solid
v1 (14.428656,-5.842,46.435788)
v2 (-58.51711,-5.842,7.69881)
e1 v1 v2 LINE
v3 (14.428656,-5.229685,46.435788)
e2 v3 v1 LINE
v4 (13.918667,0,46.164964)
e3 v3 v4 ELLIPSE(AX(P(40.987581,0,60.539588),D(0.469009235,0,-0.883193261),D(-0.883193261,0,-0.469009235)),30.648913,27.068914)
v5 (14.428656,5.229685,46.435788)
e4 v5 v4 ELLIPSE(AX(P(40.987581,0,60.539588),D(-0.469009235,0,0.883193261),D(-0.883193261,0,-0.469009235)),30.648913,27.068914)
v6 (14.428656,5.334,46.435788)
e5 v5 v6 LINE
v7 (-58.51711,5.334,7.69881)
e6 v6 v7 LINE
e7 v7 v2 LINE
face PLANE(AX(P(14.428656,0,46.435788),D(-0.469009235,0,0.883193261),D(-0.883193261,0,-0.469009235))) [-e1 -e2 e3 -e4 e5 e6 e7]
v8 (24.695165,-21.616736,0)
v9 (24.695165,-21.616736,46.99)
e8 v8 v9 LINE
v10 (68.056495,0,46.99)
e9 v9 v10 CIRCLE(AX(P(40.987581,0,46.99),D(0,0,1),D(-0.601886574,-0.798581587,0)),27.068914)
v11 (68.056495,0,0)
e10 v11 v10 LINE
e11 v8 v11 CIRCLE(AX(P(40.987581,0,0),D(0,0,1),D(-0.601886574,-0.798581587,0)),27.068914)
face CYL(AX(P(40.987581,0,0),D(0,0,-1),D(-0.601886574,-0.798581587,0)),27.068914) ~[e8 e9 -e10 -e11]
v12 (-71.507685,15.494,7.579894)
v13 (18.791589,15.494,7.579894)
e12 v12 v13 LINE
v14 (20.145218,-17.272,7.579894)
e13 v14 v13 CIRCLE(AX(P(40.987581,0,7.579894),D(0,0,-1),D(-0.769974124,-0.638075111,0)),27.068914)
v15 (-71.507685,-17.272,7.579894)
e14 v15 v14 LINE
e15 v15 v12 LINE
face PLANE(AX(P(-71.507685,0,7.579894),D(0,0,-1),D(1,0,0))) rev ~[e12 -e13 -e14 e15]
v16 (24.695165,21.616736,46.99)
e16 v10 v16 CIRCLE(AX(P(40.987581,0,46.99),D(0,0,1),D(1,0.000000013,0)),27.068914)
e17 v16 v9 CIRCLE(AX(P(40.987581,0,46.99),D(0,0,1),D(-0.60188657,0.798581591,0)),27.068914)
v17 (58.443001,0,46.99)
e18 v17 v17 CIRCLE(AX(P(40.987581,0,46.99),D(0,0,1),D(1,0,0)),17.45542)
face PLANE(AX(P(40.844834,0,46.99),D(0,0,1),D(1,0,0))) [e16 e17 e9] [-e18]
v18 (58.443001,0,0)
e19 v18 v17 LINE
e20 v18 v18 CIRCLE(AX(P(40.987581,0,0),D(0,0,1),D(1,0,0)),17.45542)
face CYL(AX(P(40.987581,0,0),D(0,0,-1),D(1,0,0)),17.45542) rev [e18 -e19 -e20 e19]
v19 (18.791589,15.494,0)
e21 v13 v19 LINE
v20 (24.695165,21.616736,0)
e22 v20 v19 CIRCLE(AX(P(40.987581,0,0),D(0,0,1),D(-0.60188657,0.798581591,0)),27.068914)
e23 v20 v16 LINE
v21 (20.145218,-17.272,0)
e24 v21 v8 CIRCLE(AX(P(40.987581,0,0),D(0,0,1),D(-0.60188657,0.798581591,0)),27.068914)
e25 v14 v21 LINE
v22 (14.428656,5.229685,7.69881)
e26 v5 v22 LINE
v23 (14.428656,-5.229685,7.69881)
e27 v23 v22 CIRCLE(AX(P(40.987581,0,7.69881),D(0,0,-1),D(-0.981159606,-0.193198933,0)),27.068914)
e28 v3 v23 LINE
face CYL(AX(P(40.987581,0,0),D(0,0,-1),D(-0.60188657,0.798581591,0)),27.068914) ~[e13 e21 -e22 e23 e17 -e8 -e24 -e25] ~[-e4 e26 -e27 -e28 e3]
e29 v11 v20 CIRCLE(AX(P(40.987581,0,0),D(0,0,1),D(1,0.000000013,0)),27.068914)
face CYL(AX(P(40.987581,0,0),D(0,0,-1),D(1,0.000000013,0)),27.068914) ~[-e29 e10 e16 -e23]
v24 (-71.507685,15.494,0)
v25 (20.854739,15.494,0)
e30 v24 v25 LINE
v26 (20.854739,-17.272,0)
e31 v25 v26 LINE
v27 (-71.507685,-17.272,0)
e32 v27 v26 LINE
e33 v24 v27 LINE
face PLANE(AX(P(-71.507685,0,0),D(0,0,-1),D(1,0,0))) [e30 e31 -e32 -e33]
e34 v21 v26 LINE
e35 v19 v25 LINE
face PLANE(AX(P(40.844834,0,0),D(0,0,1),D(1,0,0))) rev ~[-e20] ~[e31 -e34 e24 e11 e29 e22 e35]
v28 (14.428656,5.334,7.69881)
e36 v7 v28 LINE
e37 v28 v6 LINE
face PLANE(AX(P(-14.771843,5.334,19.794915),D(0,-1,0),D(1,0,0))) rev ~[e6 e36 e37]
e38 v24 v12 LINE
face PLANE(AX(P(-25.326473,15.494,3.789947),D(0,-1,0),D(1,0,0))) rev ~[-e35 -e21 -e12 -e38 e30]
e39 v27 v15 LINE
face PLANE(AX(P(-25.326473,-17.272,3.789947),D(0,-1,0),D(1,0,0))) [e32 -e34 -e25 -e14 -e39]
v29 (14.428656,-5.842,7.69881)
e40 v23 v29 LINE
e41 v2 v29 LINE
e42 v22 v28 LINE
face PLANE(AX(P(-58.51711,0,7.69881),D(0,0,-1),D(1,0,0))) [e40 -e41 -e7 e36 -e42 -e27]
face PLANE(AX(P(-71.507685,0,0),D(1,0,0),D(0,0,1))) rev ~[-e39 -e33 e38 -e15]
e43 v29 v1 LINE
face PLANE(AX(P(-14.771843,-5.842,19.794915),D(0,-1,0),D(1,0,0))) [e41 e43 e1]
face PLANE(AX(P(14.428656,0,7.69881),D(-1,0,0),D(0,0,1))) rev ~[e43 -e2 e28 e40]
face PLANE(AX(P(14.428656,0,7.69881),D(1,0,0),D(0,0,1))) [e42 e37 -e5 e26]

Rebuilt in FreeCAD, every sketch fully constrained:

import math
import FreeCAD as App
import Part
import Sketcher
Q = App.Units.Quantity


def add_polygon(sketch, points):
    """Adds a closed chain of lines whose ends are joined by coincident constraints."""
    first, n = sketch.GeometryCount, len(points)
    for a, b in zip(points, points[1:] + points[:1]):
        sketch.addGeometry(Part.LineSegment(App.Vector(*a, 0), App.Vector(*b, 0)), False)
    for i in range(n):
        sketch.addConstraint(Sketcher.Constraint("Coincident", first + i, 2, first + (i + 1) % n, 1))

doc = App.newDocument("Part")
body = doc.addObject("PartDesign::Body", "Body")

sketch1 = body.newObject("Sketcher::SketchObject", "Sketch")
sketch1.AttachmentSupport = (doc.getObject("XY_Plane"), [""])
sketch1.MapMode = "FlatFace"
sketch1.addGeometry(Part.ArcOfCircle(Part.Circle(App.Vector(41, 0, 0), App.Vector(0, 0, 1), 27), math.radians(0), math.radians(127)), False)
sketch1.addGeometry(Part.ArcOfCircle(Part.Circle(App.Vector(41, 0, 0), App.Vector(0, 0, 1), 27), math.radians(127), math.radians(233)), False)
sketch1.addGeometry(Part.ArcOfCircle(Part.Circle(App.Vector(41, 0, 0), App.Vector(0, 0, 1), 27), math.radians(-127), math.radians(0)), False)
sketch1.addGeometry(Part.Circle(App.Vector(41, 0, 0), App.Vector(0, 0, 1), 17), False)
sketch1.addConstraint(Sketcher.Constraint("Tangent", 0, 2, 1, 1))
sketch1.addConstraint(Sketcher.Constraint("Tangent", 1, 2, 2, 1))
sketch1.addConstraint(Sketcher.Constraint("Tangent", 2, 2, 0, 1))
sketch1.addConstraint(Sketcher.Constraint("Coincident", 3, 3, 0, 3))
sketch1.addConstraint(Sketcher.Constraint("Symmetric", 0, 2, 1, 2, -1))
sketch1.addConstraint(Sketcher.Constraint("PointOnObject", 2, 2, -1))
sketch1.addConstraint(Sketcher.Constraint("Diameter", 3, 34.91084))
sketch1.addConstraint(Sketcher.Constraint("Radius", 0, 27.068914))
sketch1.addConstraint(Sketcher.Constraint("DistanceX", -1, 1, 0, 3, 40.987581))
sketch1.addConstraint(Sketcher.Constraint("DistanceY", 1, 2, 0, 2, 43.233472))
pad1 = body.newObject("PartDesign::Pad", "Pad")
pad1.Profile = sketch1
pad1.Length = Q("1.85 in")

sketch2 = body.newObject("Sketcher::SketchObject", "Sketch001")
sketch2.AttachmentSupport = (doc.getObject("XZ_Plane"), [""])
sketch2.MapMode = "FlatFace"
add_polygon(sketch2, [(-72, 8), (-72, 0), (21, 0), (21, 8)])
sketch2.addConstraint(Sketcher.Constraint("Vertical", 0))
sketch2.addConstraint(Sketcher.Constraint("Horizontal", 1))
sketch2.addConstraint(Sketcher.Constraint("Vertical", 2))
sketch2.addConstraint(Sketcher.Constraint("Horizontal", 3))
sketch2.addConstraint(Sketcher.Constraint("PointOnObject", 0, 2, -1))
sketch2.addConstraint(Sketcher.Constraint("DistanceX", 1, 1, 1, 2, 92.362424))
sketch2.addConstraint(Sketcher.Constraint("DistanceY", 0, 2, 0, 1, 7.579895))
sketch2.addConstraint(Sketcher.Constraint("DistanceX", -1, 1, 1, 2, 20.854739))
pad2 = body.newObject("PartDesign::Pad", "Pad001")
pad2.Profile = sketch2
pad2.Type = "TwoLengths"
pad2.Length = Q("0.68 in")
pad2.Length2 = Q("0.61 in")

sketch3 = body.newObject("Sketcher::SketchObject", "Sketch002")
sketch3.AttachmentSupport = (doc.getObject("XZ_Plane"), [""])
sketch3.MapMode = "FlatFace"
add_polygon(sketch3, [(14, 46), (-59, 8), (14, 8)])
sketch3.addConstraint(Sketcher.Constraint("Horizontal", 1))
sketch3.addConstraint(Sketcher.Constraint("Vertical", 2))
sketch3.addConstraint(Sketcher.Constraint("Angle", 0, Q("-152.029997 deg")))
sketch3.addConstraint(Sketcher.Constraint("Distance", 0, 82.593209))
sketch3.addConstraint(Sketcher.Constraint("DistanceX", 0, 2, -1, 1, 58.51711))
sketch3.addConstraint(Sketcher.Constraint("DistanceY", -1, 1, 0, 2, 7.69881))
pad3 = body.newObject("PartDesign::Pad", "Pad002")
pad3.Profile = sketch3
pad3.Type = "TwoLengths"
pad3.Length = Q("0.23 in")
pad3.Length2 = Q("0.21 in")

doc.recompute()
